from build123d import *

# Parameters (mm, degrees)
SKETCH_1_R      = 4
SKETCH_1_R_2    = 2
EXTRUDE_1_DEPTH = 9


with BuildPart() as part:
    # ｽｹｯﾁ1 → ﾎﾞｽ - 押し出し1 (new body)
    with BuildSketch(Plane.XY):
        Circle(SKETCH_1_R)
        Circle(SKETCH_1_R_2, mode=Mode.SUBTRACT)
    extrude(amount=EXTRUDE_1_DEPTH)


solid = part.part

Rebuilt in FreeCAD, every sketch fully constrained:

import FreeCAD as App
import Part
import Sketcher

V = App.Vector

doc = App.newDocument("Part")
body = doc.addObject("PartDesign::Body", "Body")

# Sketch on XY plane
sketch1 = body.newObject("Sketcher::SketchObject", "Sketch")
sketch1.AttachmentSupport = (doc.getObject("XY_Plane"), [""])
sketch1.MapMode = "FlatFace"
sketch1.addGeometry(Part.Circle(V(0, 0, 0), V(0, 0, 1), 4), False)
sketch1.addGeometry(Part.Circle(V(0, 0, 0), V(0, 0, 1), 2), False)
sketch1.addConstraint(Sketcher.Constraint("Coincident", 0, 3, -1, 1))
sketch1.addConstraint(Sketcher.Constraint("Coincident", 1, 3, -1, 1))
sketch1.addConstraint(Sketcher.Constraint("Diameter", 0, 8.0))
sketch1.addConstraint(Sketcher.Constraint("Diameter", 1, 4.0))
pad1 = body.newObject("PartDesign::Pad", "Pad")
pad1.Profile = sketch1
pad1.Length = 9

doc.recompute()
